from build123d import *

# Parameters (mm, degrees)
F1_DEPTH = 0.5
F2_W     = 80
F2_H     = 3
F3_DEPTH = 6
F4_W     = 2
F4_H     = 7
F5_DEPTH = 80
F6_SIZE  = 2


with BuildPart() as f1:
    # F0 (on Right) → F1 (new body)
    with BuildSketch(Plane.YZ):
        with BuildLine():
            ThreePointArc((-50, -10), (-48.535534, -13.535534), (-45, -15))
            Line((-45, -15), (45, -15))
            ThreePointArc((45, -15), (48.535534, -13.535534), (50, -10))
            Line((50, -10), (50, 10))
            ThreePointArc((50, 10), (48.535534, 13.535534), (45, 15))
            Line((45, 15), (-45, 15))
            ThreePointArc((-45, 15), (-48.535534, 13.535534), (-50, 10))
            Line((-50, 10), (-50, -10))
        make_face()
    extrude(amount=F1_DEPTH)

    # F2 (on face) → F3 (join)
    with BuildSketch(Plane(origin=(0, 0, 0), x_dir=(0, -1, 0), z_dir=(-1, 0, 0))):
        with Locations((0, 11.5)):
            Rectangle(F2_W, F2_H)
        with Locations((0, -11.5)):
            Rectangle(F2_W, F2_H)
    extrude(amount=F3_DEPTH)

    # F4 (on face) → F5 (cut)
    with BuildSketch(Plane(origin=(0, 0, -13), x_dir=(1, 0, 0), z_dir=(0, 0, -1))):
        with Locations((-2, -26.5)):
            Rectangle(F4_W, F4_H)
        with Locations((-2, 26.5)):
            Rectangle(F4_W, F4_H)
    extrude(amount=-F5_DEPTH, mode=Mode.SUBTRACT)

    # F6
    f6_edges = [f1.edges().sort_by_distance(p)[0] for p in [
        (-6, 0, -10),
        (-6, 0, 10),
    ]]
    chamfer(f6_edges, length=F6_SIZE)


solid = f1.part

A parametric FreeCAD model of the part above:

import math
import FreeCAD as App
import Part
import Sketcher
Q = App.Units.Quantity


def edges_at(feature, points):
    """Names of the edges that pass closest to the given points."""
    edges = feature.Shape.Edges
    near = lambda p: min(range(len(edges)), key=lambda i: edges[i].distToShape(Part.Vertex(*p))[0])
    return sorted({f"Edge{near(p) + 1}" for p in points})

doc = App.newDocument("Part")
body = doc.addObject("PartDesign::Body", "Body")

sketch1 = doc.addObject("Sketcher::SketchObject", "Sketch")
body.addObject(sketch1)
sketch1.AttachmentSupport = (doc.YZ_Plane, [""])
sketch1.MapMode = "FlatFace"
sketch1.addGeometry(Part.ArcOfCircle(Part.Circle(App.Vector(-45, -10, 0), App.Vector(0, 0, 1), 5), math.radians(180), math.radians(270)), False)
sketch1.addGeometry(Part.LineSegment(App.Vector(-45, -15, 0), App.Vector(45, -15, 0)), False)
sketch1.addGeometry(Part.ArcOfCircle(Part.Circle(App.Vector(45, -10, 0), App.Vector(0, 0, 1), 5), math.radians(-90), math.radians(0)), False)
sketch1.addGeometry(Part.LineSegment(App.Vector(50, -10, 0), App.Vector(50, 10, 0)), False)
sketch1.addGeometry(Part.ArcOfCircle(Part.Circle(App.Vector(45, 10, 0), App.Vector(0, 0, 1), 5), math.radians(0), math.radians(90)), False)
sketch1.addGeometry(Part.LineSegment(App.Vector(45, 15, 0), App.Vector(-45, 15, 0)), False)
sketch1.addGeometry(Part.ArcOfCircle(Part.Circle(App.Vector(-45, 10, 0), App.Vector(0, 0, 1), 5), math.radians(90), math.radians(180)), False)
sketch1.addGeometry(Part.LineSegment(App.Vector(-50, 10, 0), App.Vector(-50, -10, 0)), False)
sketch1.addConstraint(Sketcher.Constraint("Tangent", 0, 2, 1, 1))
sketch1.addConstraint(Sketcher.Constraint("Tangent", 1, 2, 2, 1))
sketch1.addConstraint(Sketcher.Constraint("Tangent", 2, 2, 3, 1))
sketch1.addConstraint(Sketcher.Constraint("Tangent", 3, 2, 4, 1))
sketch1.addConstraint(Sketcher.Constraint("Tangent", 4, 2, 5, 1))
sketch1.addConstraint(Sketcher.Constraint("Tangent", 5, 2, 6, 1))
sketch1.addConstraint(Sketcher.Constraint("Tangent", 6, 2, 7, 1))
sketch1.addConstraint(Sketcher.Constraint("Tangent", 7, 2, 0, 1))
sketch1.addConstraint(Sketcher.Constraint("Horizontal", 1))
sketch1.addConstraint(Sketcher.Constraint("Vertical", 3))
sketch1.addConstraint(Sketcher.Constraint("Horizontal", 5))
sketch1.addConstraint(Sketcher.Constraint("Vertical", 7))
sketch1.addConstraint(Sketcher.Constraint("Equal", 0, 2))
sketch1.addConstraint(Sketcher.Constraint("Equal", 2, 4))
sketch1.addConstraint(Sketcher.Constraint("Equal", 4, 6))
sketch1.addConstraint(Sketcher.Constraint("Symmetric", 0, 3, 4, 3, -1, 1))
sketch1.addConstraint(Sketcher.Constraint("Radius", 0, Q("5 mm")))
sketch1.addConstraint(Sketcher.Constraint("DistanceX", 1, 1, 1, 2, Q("90 mm")))
sketch1.addConstraint(Sketcher.Constraint("DistanceY", 3, 1, 3, 2, Q("20 mm")))
pad1 = doc.addObject("PartDesign::Pad", "Pad")
body.addObject(pad1)
pad1.Profile = sketch1
pad1.Length = 0.5

sketch2 = doc.addObject("Sketcher::SketchObject", "Sketch001")
body.addObject(sketch2)
sketch2.AttachmentSupport = (doc.YZ_Plane, [""])
sketch2.MapMode = "FlatFace"
sketch2.addGeometry(Part.LineSegment(App.Vector(40, 13, 0), App.Vector(40, 10, 0)), False)
sketch2.addGeometry(Part.LineSegment(App.Vector(40, 10, 0), App.Vector(-40, 10, 0)), False)
sketch2.addGeometry(Part.LineSegment(App.Vector(-40, 10, 0), App.Vector(-40, 13, 0)), False)
sketch2.addGeometry(Part.LineSegment(App.Vector(-40, 13, 0), App.Vector(40, 13, 0)), False)
sketch2.addGeometry(Part.LineSegment(App.Vector(40, -10, 0), App.Vector(40, -13, 0)), False)
sketch2.addGeometry(Part.LineSegment(App.Vector(40, -13, 0), App.Vector(-40, -13, 0)), False)
sketch2.addGeometry(Part.LineSegment(App.Vector(-40, -13, 0), App.Vector(-40, -10, 0)), False)
sketch2.addGeometry(Part.LineSegment(App.Vector(-40, -10, 0), App.Vector(40, -10, 0)), False)
sketch2.addConstraint(Sketcher.Constraint("Coincident", 0, 2, 1, 1))
sketch2.addConstraint(Sketcher.Constraint("Coincident", 1, 2, 2, 1))
sketch2.addConstraint(Sketcher.Constraint("Coincident", 2, 2, 3, 1))
sketch2.addConstraint(Sketcher.Constraint("Coincident", 3, 2, 0, 1))
sketch2.addConstraint(Sketcher.Constraint("Coincident", 4, 2, 5, 1))
sketch2.addConstraint(Sketcher.Constraint("Coincident", 5, 2, 6, 1))
sketch2.addConstraint(Sketcher.Constraint("Coincident", 6, 2, 7, 1))
sketch2.addConstraint(Sketcher.Constraint("Coincident", 7, 2, 4, 1))
sketch2.addConstraint(Sketcher.Constraint("Vertical", 0))
sketch2.addConstraint(Sketcher.Constraint("Horizontal", 1))
sketch2.addConstraint(Sketcher.Constraint("Vertical", 2))
sketch2.addConstraint(Sketcher.Constraint("Horizontal", 3))
sketch2.addConstraint(Sketcher.Constraint("Vertical", 4))
sketch2.addConstraint(Sketcher.Constraint("Horizontal", 5))
sketch2.addConstraint(Sketcher.Constraint("Vertical", 6))
sketch2.addConstraint(Sketcher.Constraint("Horizontal", 7))
sketch2.addConstraint(Sketcher.Constraint("Symmetric", 2, 2, 4, 2, -1, 1))
sketch2.addConstraint(Sketcher.Constraint("Symmetric", 0, 2, 6, 2, -1, 1))
sketch2.addConstraint(Sketcher.Constraint("Vertical", 3, 2, 4, 2))
sketch2.addConstraint(Sketcher.Constraint("DistanceX", 1, 2, 1, 1, Q("80 mm")))
sketch2.addConstraint(Sketcher.Constraint("DistanceY", 0, 2, 0, 1, Q("3 mm")))
sketch2.addConstraint(Sketcher.Constraint("DistanceY", -1, 1, 0, 2, Q("10 mm")))
pad2 = doc.addObject("PartDesign::Pad", "Pad001")
body.addObject(pad2)
pad2.Profile = sketch2
pad2.Length = 6
pad2.Reversed = True

sketch3 = doc.addObject("Sketcher::SketchObject", "Sketch002")
body.addObject(sketch3)
sketch3.AttachmentSupport = (doc.XY_Plane, [""])
sketch3.MapMode = "FlatFace"
sketch3.AttachmentOffset = App.Placement(App.Vector(0, 0, -13), App.Rotation())
sketch3.addGeometry(Part.LineSegment(App.Vector(-3, 23, 0), App.Vector(-3, 30, 0)), False)
sketch3.addGeometry(Part.LineSegment(App.Vector(-3, 30, 0), App.Vector(-1, 30, 0)), False)
sketch3.addGeometry(Part.LineSegment(App.Vector(-1, 30, 0), App.Vector(-1, 23, 0)), False)
sketch3.addGeometry(Part.LineSegment(App.Vector(-1, 23, 0), App.Vector(-3, 23, 0)), False)
sketch3.addGeometry(Part.LineSegment(App.Vector(-3, -30, 0), App.Vector(-3, -23, 0)), False)
sketch3.addGeometry(Part.LineSegment(App.Vector(-3, -23, 0), App.Vector(-1, -23, 0)), False)
sketch3.addGeometry(Part.LineSegment(App.Vector(-1, -23, 0), App.Vector(-1, -30, 0)), False)
sketch3.addGeometry(Part.LineSegment(App.Vector(-1, -30, 0), App.Vector(-3, -30, 0)), False)
sketch3.addConstraint(Sketcher.Constraint("Coincident", 0, 2, 1, 1))
sketch3.addConstraint(Sketcher.Constraint("Coincident", 1, 2, 2, 1))
sketch3.addConstraint(Sketcher.Constraint("Coincident", 2, 2, 3, 1))
sketch3.addConstraint(Sketcher.Constraint("Coincident", 3, 2, 0, 1))
sketch3.addConstraint(Sketcher.Constraint("Coincident", 4, 2, 5, 1))
sketch3.addConstraint(Sketcher.Constraint("Coincident", 5, 2, 6, 1))
sketch3.addConstraint(Sketcher.Constraint("Coincident", 6, 2, 7, 1))
sketch3.addConstraint(Sketcher.Constraint("Coincident", 7, 2, 4, 1))
sketch3.addConstraint(Sketcher.Constraint("Vertical", 0))
sketch3.addConstraint(Sketcher.Constraint("Horizontal", 1))
sketch3.addConstraint(Sketcher.Constraint("Vertical", 2))
sketch3.addConstraint(Sketcher.Constraint("Horizontal", 3))
sketch3.addConstraint(Sketcher.Constraint("Vertical", 4))
sketch3.addConstraint(Sketcher.Constraint("Horizontal", 5))
sketch3.addConstraint(Sketcher.Constraint("Vertical", 6))
sketch3.addConstraint(Sketcher.Constraint("Horizontal", 7))
sketch3.addConstraint(Sketcher.Constraint("Symmetric", 3, 2, 4, 2, -1))
sketch3.addConstraint(Sketcher.Constraint("Symmetric", 1, 2, 6, 2, -1))
sketch3.addConstraint(Sketcher.Constraint("DistanceX", 1, 1, 1, 2, Q("2 mm")))
sketch3.addConstraint(Sketcher.Constraint("DistanceY", 0, 1, 0, 2, Q("7 mm")))
sketch3.addConstraint(Sketcher.Constraint("DistanceX", 0, 2, -1, 1, Q("3 mm")))
sketch3.addConstraint(Sketcher.Constraint("DistanceY", -1, 1, 0, 2, Q("30 mm")))
pocket1 = doc.addObject("PartDesign::Pocket", "Pocket")
body.addObject(pocket1)
pocket1.Profile = sketch3
pocket1.Length = 80
pocket1.Reversed = True
doc.recompute()

chamfer = doc.addObject("PartDesign::Chamfer", "Chamfer")
body.addObject(chamfer)
chamfer.Base = (pocket1, edges_at(pocket1, [(-6, 0, -10), (-6, 0, 10)]))
chamfer.Size = 2

doc.recompute()
